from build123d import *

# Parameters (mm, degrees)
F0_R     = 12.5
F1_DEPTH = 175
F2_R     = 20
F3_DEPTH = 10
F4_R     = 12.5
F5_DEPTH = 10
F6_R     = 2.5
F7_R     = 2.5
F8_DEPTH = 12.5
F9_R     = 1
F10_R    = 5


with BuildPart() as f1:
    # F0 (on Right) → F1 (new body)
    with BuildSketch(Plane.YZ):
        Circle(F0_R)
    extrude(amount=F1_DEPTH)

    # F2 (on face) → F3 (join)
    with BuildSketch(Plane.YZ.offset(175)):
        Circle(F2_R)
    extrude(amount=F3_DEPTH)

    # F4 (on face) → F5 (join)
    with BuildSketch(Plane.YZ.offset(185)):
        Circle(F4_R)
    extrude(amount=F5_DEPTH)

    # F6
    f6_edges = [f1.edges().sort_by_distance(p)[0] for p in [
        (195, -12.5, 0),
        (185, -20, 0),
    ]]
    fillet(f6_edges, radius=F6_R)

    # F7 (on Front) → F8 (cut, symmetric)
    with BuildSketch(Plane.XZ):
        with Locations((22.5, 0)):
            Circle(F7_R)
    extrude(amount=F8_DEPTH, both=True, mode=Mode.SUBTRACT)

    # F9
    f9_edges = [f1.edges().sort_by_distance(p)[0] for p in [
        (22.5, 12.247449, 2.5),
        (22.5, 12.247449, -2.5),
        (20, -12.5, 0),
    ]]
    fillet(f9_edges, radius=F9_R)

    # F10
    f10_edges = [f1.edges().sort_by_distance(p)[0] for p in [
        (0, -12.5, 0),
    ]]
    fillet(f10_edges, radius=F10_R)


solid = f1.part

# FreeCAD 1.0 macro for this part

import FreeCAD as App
import Part
import Sketcher

V = App.Vector


def edges_at(feature, points):
    """Names of the edges that pass closest to the given points."""
    edges = feature.Shape.Edges
    near = lambda p: min(range(len(edges)), key=lambda i: edges[i].distToShape(Part.Vertex(*p))[0])
    return sorted({f"Edge{near(p) + 1}" for p in points})

doc = App.newDocument("Part")
body = doc.addObject("PartDesign::Body", "Body")

# Sketch on YZ plane
sketch1 = body.newObject("Sketcher::SketchObject", "Sketch")
sketch1.AttachmentSupport = (doc.getObject("YZ_Plane"), [""])
sketch1.MapMode = "FlatFace"
sketch1.addGeometry(Part.Circle(V(0, 0, 0), V(0, 0, 1), 12.5), False)
sketch1.addConstraint([
    Sketcher.Constraint("Coincident", 0, 3, -1, 1),
    Sketcher.Constraint("Diameter", 0, 25.0),
])
pad1 = body.newObject("PartDesign::Pad", "Pad")
pad1.Profile = sketch1
pad1.Length = 175

# Sketch on YZ plane
sketch2 = body.newObject("Sketcher::SketchObject", "Sketch001")
sketch2.AttachmentSupport = (doc.getObject("YZ_Plane"), [""])
sketch2.MapMode = "FlatFace"
sketch2.AttachmentOffset = App.Placement(V(0, 0, 175), App.Rotation())
sketch2.addGeometry(Part.Circle(V(0, 0, 0), V(0, 0, 1), 20), False)
sketch2.addConstraint([
    Sketcher.Constraint("Coincident", 0, 3, -1, 1),
    Sketcher.Constraint("Diameter", 0, 40.0),
])
pad2 = body.newObject("PartDesign::Pad", "Pad001")
pad2.Profile = sketch2
pad2.Length = 10

# Sketch on YZ plane
sketch3 = body.newObject("Sketcher::SketchObject", "Sketch002")
sketch3.AttachmentSupport = (doc.getObject("YZ_Plane"), [""])
sketch3.MapMode = "FlatFace"
sketch3.AttachmentOffset = App.Placement(V(0, 0, 185), App.Rotation())
sketch3.addGeometry(Part.Circle(V(0, 0, 0), V(0, 0, 1), 12.5), False)
sketch3.addConstraint([
    Sketcher.Constraint("Coincident", 0, 3, -1, 1),
    Sketcher.Constraint("Diameter", 0, 25.0),
])
pad3 = body.newObject("PartDesign::Pad", "Pad002")
pad3.Profile = sketch3
pad3.Length = 10
doc.recompute()

fillet = body.newObject("PartDesign::Fillet", "Fillet")
fillet.Base = (pad3, edges_at(pad3, [(195, -12.5, 0), (185, -20, 0)]))
fillet.Radius = 2.5

# Sketch on XZ plane
sketch4 = body.newObject("Sketcher::SketchObject", "Sketch003")
sketch4.AttachmentSupport = (doc.getObject("XZ_Plane"), [""])
sketch4.MapMode = "FlatFace"
sketch4.addGeometry(Part.Circle(V(22.5, 0, 0), V(0, 0, 1), 2.5), False)
sketch4.addConstraint([
    Sketcher.Constraint("PointOnObject", 0, 3, -1),
    Sketcher.Constraint("Diameter", 0, 5.0),
    Sketcher.Constraint("DistanceX", -1, 1, 0, 3, 22.5),
])
pocket1 = body.newObject("PartDesign::Pocket", "Pocket")
pocket1.Profile = sketch4
pocket1.Length = 25
pocket1.Midplane = True
doc.recompute()

fillet2 = body.newObject("PartDesign::Fillet", "Fillet001")
fillet2.Base = (pocket1, edges_at(pocket1, [(22.5, 12.247, 2.5), (22.5, 12.247, -2.5), (20, -12.5, 0)]))
fillet2.Radius = 1
doc.recompute()

fillet3 = body.newObject("PartDesign::Fillet", "Fillet002")
fillet3.Base = (fillet2, edges_at(fillet2, [(0, -12.5, 0)]))
fillet3.Radius = 5

doc.recompute()
